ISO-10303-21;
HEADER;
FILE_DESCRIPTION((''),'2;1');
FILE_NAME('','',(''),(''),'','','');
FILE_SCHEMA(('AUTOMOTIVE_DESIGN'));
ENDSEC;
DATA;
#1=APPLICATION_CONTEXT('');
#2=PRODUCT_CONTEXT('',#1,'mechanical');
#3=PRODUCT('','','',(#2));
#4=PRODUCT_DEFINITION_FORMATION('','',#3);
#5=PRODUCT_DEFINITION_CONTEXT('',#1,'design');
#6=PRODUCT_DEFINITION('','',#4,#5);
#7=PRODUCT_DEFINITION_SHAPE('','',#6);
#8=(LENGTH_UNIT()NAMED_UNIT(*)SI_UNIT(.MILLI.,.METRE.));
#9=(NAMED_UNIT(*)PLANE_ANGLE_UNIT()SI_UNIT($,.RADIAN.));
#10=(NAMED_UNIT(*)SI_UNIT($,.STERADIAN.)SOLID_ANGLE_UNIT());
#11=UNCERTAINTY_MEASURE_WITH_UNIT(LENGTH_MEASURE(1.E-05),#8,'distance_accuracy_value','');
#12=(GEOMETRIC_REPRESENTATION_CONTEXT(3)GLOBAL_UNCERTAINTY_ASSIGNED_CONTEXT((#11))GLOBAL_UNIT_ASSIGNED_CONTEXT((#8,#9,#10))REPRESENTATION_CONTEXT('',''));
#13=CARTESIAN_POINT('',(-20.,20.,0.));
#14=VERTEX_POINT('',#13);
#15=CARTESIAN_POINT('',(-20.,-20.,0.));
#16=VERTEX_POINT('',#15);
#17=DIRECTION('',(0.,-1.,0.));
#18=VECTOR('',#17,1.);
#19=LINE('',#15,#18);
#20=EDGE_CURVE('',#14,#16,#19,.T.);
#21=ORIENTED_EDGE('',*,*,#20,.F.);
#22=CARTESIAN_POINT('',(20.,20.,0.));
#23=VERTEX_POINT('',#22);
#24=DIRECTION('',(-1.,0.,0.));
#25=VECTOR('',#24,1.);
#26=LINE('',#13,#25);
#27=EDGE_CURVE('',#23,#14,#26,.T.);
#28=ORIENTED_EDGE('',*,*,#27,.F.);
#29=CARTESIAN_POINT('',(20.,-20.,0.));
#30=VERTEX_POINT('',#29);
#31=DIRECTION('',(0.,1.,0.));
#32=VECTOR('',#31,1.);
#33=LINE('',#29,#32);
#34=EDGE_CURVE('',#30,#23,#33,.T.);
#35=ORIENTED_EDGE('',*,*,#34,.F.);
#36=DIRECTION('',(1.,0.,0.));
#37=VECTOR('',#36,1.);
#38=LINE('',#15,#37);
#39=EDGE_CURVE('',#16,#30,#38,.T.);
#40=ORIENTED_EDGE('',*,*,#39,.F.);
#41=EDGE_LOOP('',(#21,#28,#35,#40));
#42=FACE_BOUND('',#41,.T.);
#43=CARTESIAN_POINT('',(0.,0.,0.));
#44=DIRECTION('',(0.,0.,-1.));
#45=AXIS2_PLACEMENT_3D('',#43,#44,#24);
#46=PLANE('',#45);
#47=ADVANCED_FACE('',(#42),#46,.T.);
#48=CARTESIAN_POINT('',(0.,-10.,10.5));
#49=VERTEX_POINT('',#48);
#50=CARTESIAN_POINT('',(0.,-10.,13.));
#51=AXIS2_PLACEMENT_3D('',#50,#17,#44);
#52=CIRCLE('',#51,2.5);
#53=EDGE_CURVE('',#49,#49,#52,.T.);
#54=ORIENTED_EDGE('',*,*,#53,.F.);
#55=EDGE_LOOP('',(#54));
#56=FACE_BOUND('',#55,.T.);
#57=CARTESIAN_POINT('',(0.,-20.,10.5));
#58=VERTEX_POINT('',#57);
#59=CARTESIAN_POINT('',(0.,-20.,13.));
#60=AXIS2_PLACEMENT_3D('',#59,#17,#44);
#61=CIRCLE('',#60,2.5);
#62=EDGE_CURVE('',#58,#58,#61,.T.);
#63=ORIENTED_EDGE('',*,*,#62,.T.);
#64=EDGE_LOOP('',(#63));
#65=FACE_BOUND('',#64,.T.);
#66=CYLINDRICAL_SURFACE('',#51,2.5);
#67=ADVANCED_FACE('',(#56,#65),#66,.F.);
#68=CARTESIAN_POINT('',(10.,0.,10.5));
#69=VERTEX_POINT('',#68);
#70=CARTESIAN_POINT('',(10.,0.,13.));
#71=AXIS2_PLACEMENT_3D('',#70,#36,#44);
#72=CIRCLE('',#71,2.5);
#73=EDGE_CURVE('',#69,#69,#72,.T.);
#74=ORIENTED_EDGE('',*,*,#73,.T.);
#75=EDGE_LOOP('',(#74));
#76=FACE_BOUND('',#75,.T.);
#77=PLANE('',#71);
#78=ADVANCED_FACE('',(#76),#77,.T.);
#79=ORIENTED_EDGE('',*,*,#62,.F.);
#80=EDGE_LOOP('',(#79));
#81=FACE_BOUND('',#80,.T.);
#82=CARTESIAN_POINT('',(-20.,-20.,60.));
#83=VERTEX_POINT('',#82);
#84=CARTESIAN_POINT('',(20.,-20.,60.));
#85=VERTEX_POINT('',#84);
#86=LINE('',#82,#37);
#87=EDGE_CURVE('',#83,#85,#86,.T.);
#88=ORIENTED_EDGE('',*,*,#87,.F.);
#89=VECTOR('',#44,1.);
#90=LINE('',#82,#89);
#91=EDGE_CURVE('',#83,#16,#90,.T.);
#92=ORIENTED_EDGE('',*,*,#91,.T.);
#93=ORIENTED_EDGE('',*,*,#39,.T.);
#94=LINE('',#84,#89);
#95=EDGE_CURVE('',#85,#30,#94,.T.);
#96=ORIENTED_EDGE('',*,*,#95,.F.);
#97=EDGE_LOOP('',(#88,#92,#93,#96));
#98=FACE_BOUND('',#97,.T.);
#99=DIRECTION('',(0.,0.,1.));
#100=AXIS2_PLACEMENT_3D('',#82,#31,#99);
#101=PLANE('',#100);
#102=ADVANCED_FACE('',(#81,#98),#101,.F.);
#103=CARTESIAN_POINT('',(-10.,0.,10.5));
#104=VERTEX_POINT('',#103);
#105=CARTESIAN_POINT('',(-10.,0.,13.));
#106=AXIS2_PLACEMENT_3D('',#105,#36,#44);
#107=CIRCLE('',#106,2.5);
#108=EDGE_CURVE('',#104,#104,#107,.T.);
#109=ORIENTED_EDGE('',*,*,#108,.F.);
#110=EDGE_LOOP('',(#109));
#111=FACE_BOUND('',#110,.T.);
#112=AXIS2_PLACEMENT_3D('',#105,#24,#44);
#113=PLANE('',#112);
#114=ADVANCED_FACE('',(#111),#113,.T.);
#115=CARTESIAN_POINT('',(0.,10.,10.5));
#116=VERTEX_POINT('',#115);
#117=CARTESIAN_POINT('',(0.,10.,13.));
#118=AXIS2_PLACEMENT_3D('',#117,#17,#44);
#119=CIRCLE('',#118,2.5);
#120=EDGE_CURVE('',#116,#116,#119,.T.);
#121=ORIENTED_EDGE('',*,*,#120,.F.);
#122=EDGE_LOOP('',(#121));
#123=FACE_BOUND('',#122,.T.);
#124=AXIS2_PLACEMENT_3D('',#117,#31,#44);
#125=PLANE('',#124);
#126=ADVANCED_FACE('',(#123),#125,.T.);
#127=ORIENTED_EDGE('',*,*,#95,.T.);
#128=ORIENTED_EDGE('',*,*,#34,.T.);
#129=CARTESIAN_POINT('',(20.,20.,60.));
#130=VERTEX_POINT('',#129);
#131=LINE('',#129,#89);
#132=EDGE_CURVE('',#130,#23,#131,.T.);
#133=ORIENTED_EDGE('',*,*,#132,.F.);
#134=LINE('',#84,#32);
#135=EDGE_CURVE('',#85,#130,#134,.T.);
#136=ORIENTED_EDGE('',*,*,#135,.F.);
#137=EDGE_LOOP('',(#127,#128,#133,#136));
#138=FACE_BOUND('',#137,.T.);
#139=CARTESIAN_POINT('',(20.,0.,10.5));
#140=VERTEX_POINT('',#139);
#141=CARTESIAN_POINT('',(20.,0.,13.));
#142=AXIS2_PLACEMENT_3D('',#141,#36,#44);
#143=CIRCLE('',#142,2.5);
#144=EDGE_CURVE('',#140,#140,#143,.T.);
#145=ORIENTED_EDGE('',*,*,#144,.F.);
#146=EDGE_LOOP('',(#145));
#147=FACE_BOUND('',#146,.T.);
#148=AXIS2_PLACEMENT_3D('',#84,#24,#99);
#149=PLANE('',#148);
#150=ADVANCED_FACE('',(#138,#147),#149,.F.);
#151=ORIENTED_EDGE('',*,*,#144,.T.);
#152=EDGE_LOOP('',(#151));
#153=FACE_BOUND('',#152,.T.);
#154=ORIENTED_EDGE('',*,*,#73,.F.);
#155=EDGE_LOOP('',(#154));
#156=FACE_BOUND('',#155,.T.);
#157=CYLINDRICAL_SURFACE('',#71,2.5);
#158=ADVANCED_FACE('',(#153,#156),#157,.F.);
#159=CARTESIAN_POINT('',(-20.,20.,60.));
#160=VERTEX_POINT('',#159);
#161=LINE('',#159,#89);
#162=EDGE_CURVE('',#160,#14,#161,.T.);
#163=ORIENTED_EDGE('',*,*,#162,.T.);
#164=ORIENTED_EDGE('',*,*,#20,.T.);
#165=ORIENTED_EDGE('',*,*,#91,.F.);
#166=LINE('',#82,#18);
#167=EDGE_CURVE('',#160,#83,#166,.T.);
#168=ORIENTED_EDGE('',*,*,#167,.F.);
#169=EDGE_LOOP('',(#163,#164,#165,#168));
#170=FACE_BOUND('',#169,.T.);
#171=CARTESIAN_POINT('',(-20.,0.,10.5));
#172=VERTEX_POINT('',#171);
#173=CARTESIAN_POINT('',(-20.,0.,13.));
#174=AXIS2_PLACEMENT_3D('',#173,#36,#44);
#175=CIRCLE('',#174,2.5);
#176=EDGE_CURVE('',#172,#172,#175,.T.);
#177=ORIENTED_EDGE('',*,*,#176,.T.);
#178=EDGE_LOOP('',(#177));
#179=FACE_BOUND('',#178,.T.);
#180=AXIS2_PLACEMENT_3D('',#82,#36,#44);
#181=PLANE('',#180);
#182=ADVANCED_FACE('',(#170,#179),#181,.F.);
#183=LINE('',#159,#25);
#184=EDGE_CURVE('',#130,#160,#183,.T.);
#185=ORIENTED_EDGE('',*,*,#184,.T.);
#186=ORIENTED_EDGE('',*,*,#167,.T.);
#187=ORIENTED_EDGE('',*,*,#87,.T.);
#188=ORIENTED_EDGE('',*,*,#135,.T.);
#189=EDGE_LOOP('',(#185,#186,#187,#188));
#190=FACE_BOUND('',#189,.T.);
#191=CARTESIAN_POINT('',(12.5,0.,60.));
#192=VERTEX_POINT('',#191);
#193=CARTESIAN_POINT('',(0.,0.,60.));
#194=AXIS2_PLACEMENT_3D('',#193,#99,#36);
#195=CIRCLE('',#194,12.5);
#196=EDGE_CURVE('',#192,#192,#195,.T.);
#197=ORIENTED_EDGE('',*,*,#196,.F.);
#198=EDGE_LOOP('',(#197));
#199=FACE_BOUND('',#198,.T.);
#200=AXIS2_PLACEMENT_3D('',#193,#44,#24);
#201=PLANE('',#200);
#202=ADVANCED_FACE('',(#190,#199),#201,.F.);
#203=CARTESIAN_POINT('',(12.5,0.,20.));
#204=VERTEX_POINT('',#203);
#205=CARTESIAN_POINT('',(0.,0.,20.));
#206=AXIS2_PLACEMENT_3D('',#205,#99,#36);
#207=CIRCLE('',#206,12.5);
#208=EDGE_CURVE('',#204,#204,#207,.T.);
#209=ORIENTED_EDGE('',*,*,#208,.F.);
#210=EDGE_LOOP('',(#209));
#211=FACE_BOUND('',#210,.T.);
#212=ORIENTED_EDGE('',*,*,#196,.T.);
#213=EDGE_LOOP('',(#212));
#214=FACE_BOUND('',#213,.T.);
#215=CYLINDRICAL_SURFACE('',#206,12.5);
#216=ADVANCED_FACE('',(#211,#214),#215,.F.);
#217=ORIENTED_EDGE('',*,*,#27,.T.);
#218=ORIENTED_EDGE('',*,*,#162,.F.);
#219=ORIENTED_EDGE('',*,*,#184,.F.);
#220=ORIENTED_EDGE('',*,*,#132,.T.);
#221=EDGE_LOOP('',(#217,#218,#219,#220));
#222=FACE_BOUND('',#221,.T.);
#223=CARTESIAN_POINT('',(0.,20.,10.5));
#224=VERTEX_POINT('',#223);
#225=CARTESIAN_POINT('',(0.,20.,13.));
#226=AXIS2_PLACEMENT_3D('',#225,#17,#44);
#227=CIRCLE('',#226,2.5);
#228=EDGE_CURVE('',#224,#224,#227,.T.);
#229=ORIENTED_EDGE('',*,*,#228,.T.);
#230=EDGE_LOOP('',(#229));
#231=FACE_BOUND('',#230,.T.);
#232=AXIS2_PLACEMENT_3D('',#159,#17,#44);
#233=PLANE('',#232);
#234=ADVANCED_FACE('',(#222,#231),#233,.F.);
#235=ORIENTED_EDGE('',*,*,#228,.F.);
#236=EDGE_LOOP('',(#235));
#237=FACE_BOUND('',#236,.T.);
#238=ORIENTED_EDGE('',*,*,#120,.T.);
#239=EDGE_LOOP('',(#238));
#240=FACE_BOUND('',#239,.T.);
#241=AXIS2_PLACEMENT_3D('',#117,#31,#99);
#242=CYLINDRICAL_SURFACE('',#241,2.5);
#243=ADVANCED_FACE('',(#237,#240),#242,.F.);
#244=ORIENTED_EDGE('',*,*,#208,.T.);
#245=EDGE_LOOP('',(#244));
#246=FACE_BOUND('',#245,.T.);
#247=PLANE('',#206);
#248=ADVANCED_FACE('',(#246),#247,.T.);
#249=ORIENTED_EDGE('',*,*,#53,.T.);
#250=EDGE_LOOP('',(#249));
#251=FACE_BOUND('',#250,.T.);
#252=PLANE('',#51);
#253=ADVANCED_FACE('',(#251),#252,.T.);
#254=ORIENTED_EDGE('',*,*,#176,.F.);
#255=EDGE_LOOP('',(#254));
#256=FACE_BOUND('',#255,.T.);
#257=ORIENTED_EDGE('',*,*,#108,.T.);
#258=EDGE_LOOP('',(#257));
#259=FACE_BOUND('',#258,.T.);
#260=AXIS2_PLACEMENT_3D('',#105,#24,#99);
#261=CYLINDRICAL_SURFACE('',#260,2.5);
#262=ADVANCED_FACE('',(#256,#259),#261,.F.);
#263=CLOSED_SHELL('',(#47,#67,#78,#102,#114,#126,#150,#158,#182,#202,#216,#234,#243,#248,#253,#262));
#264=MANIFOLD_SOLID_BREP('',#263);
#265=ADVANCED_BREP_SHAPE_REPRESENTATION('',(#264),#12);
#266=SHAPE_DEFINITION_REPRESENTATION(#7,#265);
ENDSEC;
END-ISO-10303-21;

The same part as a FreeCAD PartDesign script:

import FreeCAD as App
import Part
import Sketcher
from FreeCAD import Vector

doc = App.newDocument("Part")
body = doc.addObject("PartDesign::Body", "Body")

# Sketch on XY plane
sketch1 = body.newObject("Sketcher::SketchObject", "Sketch")
sketch1.AttachmentSupport = (doc.getObject("XY_Plane"), [""])
sketch1.MapMode = "FlatFace"
sketch1.addGeometry(Part.LineSegment(Vector(-20, 20, 0), Vector(-20, -20, 0)), False)
sketch1.addGeometry(Part.LineSegment(Vector(-20, -20, 0), Vector(20, -20, 0)), False)
sketch1.addGeometry(Part.LineSegment(Vector(20, -20, 0), Vector(20, 20, 0)), False)
sketch1.addGeometry(Part.LineSegment(Vector(20, 20, 0), Vector(-20, 20, 0)), False)
sketch1.addConstraint(Sketcher.Constraint("Coincident", 0, 2, 1, 1))
sketch1.addConstraint(Sketcher.Constraint("Coincident", 1, 2, 2, 1))
sketch1.addConstraint(Sketcher.Constraint("Coincident", 2, 2, 3, 1))
sketch1.addConstraint(Sketcher.Constraint("Coincident", 3, 2, 0, 1))
sketch1.addConstraint(Sketcher.Constraint("Vertical", 0))
sketch1.addConstraint(Sketcher.Constraint("Horizontal", 1))
sketch1.addConstraint(Sketcher.Constraint("Vertical", 2))
sketch1.addConstraint(Sketcher.Constraint("Horizontal", 3))
sketch1.addConstraint(Sketcher.Constraint("Symmetric", 0, 2, 2, 2, -1, 1))
sketch1.addConstraint(Sketcher.Constraint("Equal", 3, 0))
sketch1.addConstraint(Sketcher.Constraint("DistanceX", 1, 1, 1, 2, 40.0))
pad1 = body.newObject("PartDesign::Pad", "Pad")
pad1.Profile = sketch1
pad1.Length = 60

# Sketch on XZ plane
sketch2 = body.newObject("Sketcher::SketchObject", "Sketch001")
sketch2.AttachmentSupport = (doc.getObject("XZ_Plane"), [""])
sketch2.MapMode = "FlatFace"
sketch2.AttachmentOffset = App.Placement(Vector(0, 0, 20), App.Rotation())
sketch2.addGeometry(Part.Circle(Vector(0, 13, 0), Vector(0, 0, 1), 2.5), False)
sketch2.addConstraint(Sketcher.Constraint("PointOnObject", 0, 3, -2))
sketch2.addConstraint(Sketcher.Constraint("Diameter", 0, 5.0))
sketch2.addConstraint(Sketcher.Constraint("DistanceY", -1, 1, 0, 3, 13.0))
pocket1 = body.newObject("PartDesign::Pocket", "Pocket")
pocket1.Profile = sketch2
pocket1.Length = 10

# Sketch on YZ plane
sketch3 = body.newObject("Sketcher::SketchObject", "Sketch002")
sketch3.AttachmentSupport = (doc.getObject("YZ_Plane"), [""])
sketch3.MapMode = "FlatFace"
sketch3.AttachmentOffset = App.Placement(Vector(0, 0, 20), App.Rotation())
sketch3.addGeometry(Part.Circle(Vector(0, 13, 0), Vector(0, 0, 1), 2.5), False)
sketch3.addConstraint(Sketcher.Constraint("PointOnObject", 0, 3, -2))
sketch3.addConstraint(Sketcher.Constraint("Diameter", 0, 5.0))
sketch3.addConstraint(Sketcher.Constraint("DistanceY", -1, 1, 0, 3, 13.0))
pocket2 = body.newObject("PartDesign::Pocket", "Pocket001")
pocket2.Profile = sketch3
pocket2.Length = 10
doc.recompute()

mirrored = body.newObject("PartDesign::Mirrored", "Mirrored")
mirrored.Originals = [pocket1]
mirrored.MirrorPlane = (doc.getObject("XZ_Plane"), [""])
body.Tip = mirrored
doc.recompute()

mirrored2 = body.newObject("PartDesign::Mirrored", "Mirrored001")
mirrored2.Originals = [pocket2]
mirrored2.MirrorPlane = (doc.getObject("YZ_Plane"), [""])
body.Tip = mirrored2

# Sketch on XY plane
sketch4 = body.newObject("Sketcher::SketchObject", "Sketch003")
sketch4.AttachmentSupport = (doc.getObject("XY_Plane"), [""])
sketch4.MapMode = "FlatFace"
sketch4.AttachmentOffset = App.Placement(Vector(0, 0, 60), App.Rotation())
sketch4.addGeometry(Part.Circle(Vector(0, 0, 0), Vector(0, 0, 1), 12.5), False)
sketch4.addConstraint(Sketcher.Constraint("Coincident", 0, 3, -1, 1))
sketch4.addConstraint(Sketcher.Constraint("Diameter", 0, 25.0))
pocket3 = body.newObject("PartDesign::Pocket", "Pocket002")
pocket3.Profile = sketch4
pocket3.Length = 40

doc.recompute()
